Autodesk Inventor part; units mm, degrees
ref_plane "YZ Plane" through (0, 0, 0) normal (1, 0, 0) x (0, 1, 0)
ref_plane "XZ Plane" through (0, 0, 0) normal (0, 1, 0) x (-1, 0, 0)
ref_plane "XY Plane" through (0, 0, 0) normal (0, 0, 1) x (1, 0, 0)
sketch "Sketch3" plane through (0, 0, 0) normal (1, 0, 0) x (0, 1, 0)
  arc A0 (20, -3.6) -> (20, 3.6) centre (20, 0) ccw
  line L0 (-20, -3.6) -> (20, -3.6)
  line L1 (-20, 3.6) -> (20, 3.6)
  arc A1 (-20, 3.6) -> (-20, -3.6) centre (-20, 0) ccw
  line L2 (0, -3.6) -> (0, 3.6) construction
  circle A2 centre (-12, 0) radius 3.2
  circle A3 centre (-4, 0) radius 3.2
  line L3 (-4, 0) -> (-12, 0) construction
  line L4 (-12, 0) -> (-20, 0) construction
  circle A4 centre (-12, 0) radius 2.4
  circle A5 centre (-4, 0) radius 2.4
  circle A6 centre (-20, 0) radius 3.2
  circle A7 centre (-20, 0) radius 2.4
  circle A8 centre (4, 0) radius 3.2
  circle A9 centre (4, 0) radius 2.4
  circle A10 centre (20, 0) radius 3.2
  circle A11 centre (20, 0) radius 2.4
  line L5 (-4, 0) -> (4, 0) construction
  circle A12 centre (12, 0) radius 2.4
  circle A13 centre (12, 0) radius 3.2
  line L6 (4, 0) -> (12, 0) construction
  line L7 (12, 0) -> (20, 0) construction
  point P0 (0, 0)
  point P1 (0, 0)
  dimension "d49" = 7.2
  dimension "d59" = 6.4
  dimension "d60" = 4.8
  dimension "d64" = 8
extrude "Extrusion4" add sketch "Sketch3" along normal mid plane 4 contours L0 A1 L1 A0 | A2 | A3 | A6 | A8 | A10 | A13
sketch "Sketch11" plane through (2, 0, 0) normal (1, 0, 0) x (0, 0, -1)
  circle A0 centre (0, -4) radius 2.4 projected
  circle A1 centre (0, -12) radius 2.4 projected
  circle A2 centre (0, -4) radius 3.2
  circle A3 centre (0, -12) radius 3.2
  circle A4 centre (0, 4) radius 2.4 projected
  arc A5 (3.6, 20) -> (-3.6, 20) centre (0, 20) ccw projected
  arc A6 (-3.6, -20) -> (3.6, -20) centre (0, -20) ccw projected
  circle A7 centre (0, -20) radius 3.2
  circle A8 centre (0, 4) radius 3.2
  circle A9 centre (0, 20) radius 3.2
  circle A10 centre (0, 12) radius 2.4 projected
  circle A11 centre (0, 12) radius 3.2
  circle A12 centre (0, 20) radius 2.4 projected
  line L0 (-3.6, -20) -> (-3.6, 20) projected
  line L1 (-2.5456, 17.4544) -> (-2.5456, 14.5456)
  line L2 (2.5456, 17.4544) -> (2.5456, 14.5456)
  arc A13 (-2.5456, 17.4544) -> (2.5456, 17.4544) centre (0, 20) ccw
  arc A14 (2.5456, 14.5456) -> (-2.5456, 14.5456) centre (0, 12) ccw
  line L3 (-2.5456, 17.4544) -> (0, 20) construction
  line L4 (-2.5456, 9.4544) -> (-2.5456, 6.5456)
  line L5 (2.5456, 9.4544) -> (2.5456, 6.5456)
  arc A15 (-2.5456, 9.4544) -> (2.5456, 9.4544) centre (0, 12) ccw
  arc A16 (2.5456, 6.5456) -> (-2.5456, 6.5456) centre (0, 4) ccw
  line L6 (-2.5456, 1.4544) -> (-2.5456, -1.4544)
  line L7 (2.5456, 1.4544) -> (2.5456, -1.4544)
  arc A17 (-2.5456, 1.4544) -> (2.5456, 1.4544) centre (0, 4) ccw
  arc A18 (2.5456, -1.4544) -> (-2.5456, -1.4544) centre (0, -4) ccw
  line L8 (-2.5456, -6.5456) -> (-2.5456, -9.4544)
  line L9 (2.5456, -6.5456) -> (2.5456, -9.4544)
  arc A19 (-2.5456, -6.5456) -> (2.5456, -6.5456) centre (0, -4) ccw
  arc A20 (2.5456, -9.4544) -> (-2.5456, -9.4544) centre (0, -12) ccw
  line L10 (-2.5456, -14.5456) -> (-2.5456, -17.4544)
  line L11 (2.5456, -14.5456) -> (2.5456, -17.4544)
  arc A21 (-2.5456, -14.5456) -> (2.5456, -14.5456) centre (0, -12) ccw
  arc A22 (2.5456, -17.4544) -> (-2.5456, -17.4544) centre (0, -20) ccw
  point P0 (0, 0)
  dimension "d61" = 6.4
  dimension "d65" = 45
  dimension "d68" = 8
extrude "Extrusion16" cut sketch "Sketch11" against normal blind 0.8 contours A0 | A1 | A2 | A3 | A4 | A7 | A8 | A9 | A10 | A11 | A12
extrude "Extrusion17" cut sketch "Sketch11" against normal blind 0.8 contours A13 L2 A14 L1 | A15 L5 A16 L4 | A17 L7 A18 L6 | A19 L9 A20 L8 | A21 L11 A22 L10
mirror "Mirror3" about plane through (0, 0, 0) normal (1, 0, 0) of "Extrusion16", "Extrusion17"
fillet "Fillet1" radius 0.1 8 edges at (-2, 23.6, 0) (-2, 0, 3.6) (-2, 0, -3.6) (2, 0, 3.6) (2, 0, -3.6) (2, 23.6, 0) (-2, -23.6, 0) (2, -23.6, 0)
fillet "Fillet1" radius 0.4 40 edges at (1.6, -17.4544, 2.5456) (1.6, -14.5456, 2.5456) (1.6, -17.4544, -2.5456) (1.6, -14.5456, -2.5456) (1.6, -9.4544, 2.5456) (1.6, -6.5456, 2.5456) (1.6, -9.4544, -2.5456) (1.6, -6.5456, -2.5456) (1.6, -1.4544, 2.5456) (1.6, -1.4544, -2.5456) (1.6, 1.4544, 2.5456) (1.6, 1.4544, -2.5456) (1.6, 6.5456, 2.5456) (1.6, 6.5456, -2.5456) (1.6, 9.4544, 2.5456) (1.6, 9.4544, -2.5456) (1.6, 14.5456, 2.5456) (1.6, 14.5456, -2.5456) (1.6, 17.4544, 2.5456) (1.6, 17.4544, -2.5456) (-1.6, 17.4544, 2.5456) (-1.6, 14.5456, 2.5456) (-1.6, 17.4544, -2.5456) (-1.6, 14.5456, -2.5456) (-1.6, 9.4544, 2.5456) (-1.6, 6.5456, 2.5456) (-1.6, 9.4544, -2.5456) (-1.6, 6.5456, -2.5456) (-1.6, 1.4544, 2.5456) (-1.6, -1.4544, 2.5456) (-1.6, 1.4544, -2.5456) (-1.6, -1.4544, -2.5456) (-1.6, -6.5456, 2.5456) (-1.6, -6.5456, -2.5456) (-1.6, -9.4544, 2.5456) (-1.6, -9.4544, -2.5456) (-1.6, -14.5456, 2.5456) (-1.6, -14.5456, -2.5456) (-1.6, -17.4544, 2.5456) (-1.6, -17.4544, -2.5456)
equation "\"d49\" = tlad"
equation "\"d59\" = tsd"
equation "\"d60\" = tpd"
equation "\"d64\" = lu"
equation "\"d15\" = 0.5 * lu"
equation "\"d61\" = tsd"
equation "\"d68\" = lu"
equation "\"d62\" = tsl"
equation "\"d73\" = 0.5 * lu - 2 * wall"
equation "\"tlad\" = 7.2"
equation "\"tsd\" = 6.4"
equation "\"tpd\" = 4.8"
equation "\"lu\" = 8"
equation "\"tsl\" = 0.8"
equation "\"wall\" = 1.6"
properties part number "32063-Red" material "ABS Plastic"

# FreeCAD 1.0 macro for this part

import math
import FreeCAD as App
import Part
import Sketcher
Q = App.Units.Quantity


def edges_at(feature, points):
    """Names of the edges that pass closest to the given points."""
    edges = feature.Shape.Edges
    near = lambda p: min(range(len(edges)), key=lambda i: edges[i].distToShape(Part.Vertex(*p))[0])
    return sorted({f"Edge{near(p) + 1}" for p in points})

doc = App.newDocument("Part")
params = doc.addObject("Spreadsheet::Sheet", "Params")
for row, (alias, value) in enumerate([
    ("sketch1_diameter", "4.8 mm"),
    ("sketch1_radius", "3.6 mm"),
    ("pad1_length", "4 mm"),
    ("sketch2_diameter", "6.4 mm"),
    ("pocket1_length", "0.8 mm"),
    ("sketch3_radius", "3.6 mm"),
    ("pocket2_length", "0.8 mm"),
    ("fillet_radius", "0.1 mm"),
    ("fillet2_radius", "0.4 mm"),
], start=1):
    params.set(f"A{row}", alias)
    params.set(f"B{row}", "=" + value)
    params.setAlias(f"B{row}", alias)

body = doc.addObject("PartDesign::Body", "Body")

# Sketch on YZ plane
sketch1 = body.newObject("Sketcher::SketchObject", "Sketch")
sketch1.AttachmentSupport = (doc.getObject("YZ_Plane"), [""])
sketch1.MapMode = "FlatFace"
sketch1.addGeometry([
    Part.LineSegment(App.Vector(-20, -3.6, 0), App.Vector(20, -3.6, 0)),  # 0
    Part.ArcOfCircle(Part.Circle(App.Vector(20, 0, 0), App.Vector(0, 0, 1), 3.6), math.radians(-90), math.radians(90)),  # 1
    Part.LineSegment(App.Vector(20, 3.6, 0), App.Vector(-20, 3.6, 0)),  # 2
    Part.ArcOfCircle(Part.Circle(App.Vector(-20, 0, 0), App.Vector(0, 0, 1), 3.6), math.radians(90), math.radians(270)),  # 3
    Part.Circle(App.Vector(-20, 0, 0), App.Vector(0, 0, 1), 2.4),  # 4
    Part.Circle(App.Vector(-12, 0, 0), App.Vector(0, 0, 1), 2.4),  # 5
    Part.Circle(App.Vector(-4, 0, 0), App.Vector(0, 0, 1), 2.4),  # 6
    Part.Circle(App.Vector(4, 0, 0), App.Vector(0, 0, 1), 2.4),  # 7
    Part.Circle(App.Vector(12, 0, 0), App.Vector(0, 0, 1), 2.4),  # 8
    Part.Circle(App.Vector(20, 0, 0), App.Vector(0, 0, 1), 2.4),  # 9
], False)
sketch1.addConstraint([
    Sketcher.Constraint("Tangent", 0, 2, 1, 1),
    Sketcher.Constraint("Tangent", 1, 2, 2, 1),
    Sketcher.Constraint("Tangent", 2, 2, 3, 1),
    Sketcher.Constraint("Tangent", 3, 2, 0, 1),
    Sketcher.Constraint("Horizontal", 0),
    Sketcher.Constraint("Horizontal", 2),
    Sketcher.Constraint("Coincident", 4, 3, 3, 3),
    Sketcher.Constraint("Coincident", 9, 3, 1, 3),
    Sketcher.Constraint("Equal", 4, 5),
    Sketcher.Constraint("Equal", 5, 6),
    Sketcher.Constraint("Equal", 6, 7),
    Sketcher.Constraint("Equal", 7, 8),
    Sketcher.Constraint("Equal", 8, 9),
    Sketcher.Constraint("Symmetric", 1, 3, 3, 3, -1, 1),
    Sketcher.Constraint("Symmetric", 6, 3, 7, 3, -1, 1),
    Sketcher.Constraint("Symmetric", 5, 3, 8, 3, -1, 1),
    Sketcher.Constraint("PointOnObject", 5, 3, -1),
    Sketcher.Constraint("PointOnObject", 6, 3, -1),
    Sketcher.Constraint("Diameter", 4, Q("4.8 mm")),
    Sketcher.Constraint("Radius", 1, Q("3.6 mm")),
    Sketcher.Constraint("DistanceX", 3, 3, 5, 3, Q("8 mm")),
    Sketcher.Constraint("DistanceX", 5, 3, 6, 3, Q("8 mm")),
    Sketcher.Constraint("DistanceX", 6, 3, 7, 3, Q("8 mm")),
])
sketch1.setExpression("Constraints[18]", "Params.sketch1_diameter")
sketch1.setExpression("Constraints[19]", "Params.sketch1_radius")
pad1 = body.newObject("PartDesign::Pad", "Pad")
pad1.Profile = sketch1
pad1.setExpression("Length", "Params.pad1_length")
pad1.Midplane = True

# Sketch on YZ plane
sketch2 = body.newObject("Sketcher::SketchObject", "Sketch001")
sketch2.AttachmentSupport = (doc.getObject("YZ_Plane"), [""])
sketch2.MapMode = "FlatFace"
sketch2.AttachmentOffset = App.Placement(App.Vector(0, 0, 2), App.Rotation())
sketch2.addGeometry([
    Part.Circle(App.Vector(-4, 0, 0), App.Vector(0, 0, 1), 3.2),  # 0
    Part.Circle(App.Vector(-12, 0, 0), App.Vector(0, 0, 1), 3.2),  # 1
    Part.Circle(App.Vector(4, 0, 0), App.Vector(0, 0, 1), 3.2),  # 2
    Part.Circle(App.Vector(-20, 0, 0), App.Vector(0, 0, 1), 3.2),  # 3
    Part.Circle(App.Vector(20, 0, 0), App.Vector(0, 0, 1), 3.2),  # 4
    Part.Circle(App.Vector(12, 0, 0), App.Vector(0, 0, 1), 3.2),  # 5
], False)
sketch2.addConstraint([
    Sketcher.Constraint("Equal", 0, 1),
    Sketcher.Constraint("Equal", 1, 2),
    Sketcher.Constraint("Equal", 2, 3),
    Sketcher.Constraint("Equal", 3, 4),
    Sketcher.Constraint("Equal", 4, 5),
    Sketcher.Constraint("Symmetric", 0, 3, 2, 3, -1, 1),
    Sketcher.Constraint("Symmetric", 3, 3, 4, 3, -1, 1),
    Sketcher.Constraint("Symmetric", 1, 3, 5, 3, -1, 1),
    Sketcher.Constraint("PointOnObject", 0, 3, -1),
    Sketcher.Constraint("PointOnObject", 1, 3, -1),
    Sketcher.Constraint("PointOnObject", 3, 3, -1),
    Sketcher.Constraint("Diameter", 0, Q("6.4 mm")),
    Sketcher.Constraint("DistanceX", 1, 3, 0, 3, Q("8 mm")),
    Sketcher.Constraint("DistanceX", 0, 3, 2, 3, Q("8 mm")),
    Sketcher.Constraint("DistanceX", 3, 3, 1, 3, Q("8 mm")),
])
sketch2.setExpression("Constraints[11]", "Params.sketch2_diameter")
pocket1 = body.newObject("PartDesign::Pocket", "Pocket")
pocket1.Profile = sketch2
pocket1.setExpression("Length", "Params.pocket1_length")

# Sketch on YZ plane
sketch3 = body.newObject("Sketcher::SketchObject", "Sketch002")
sketch3.AttachmentSupport = (doc.getObject("YZ_Plane"), [""])
sketch3.MapMode = "FlatFace"
sketch3.AttachmentOffset = App.Placement(App.Vector(0, 0, 2), App.Rotation())
sketch3.addGeometry([
    Part.ArcOfCircle(Part.Circle(App.Vector(20, 0, 0), App.Vector(0, 0, 1), 3.6), math.radians(135), math.radians(225)),  # 0
    Part.LineSegment(App.Vector(17.5, 2.5, 0), App.Vector(14.5, 2.5, 0)),  # 1
    Part.ArcOfCircle(Part.Circle(App.Vector(12, 0, 0), App.Vector(0, 0, 1), 3.6), math.radians(-45), math.radians(45)),  # 2
    Part.LineSegment(App.Vector(14.5, -2.5, 0), App.Vector(17.5, -2.5, 0)),  # 3
    Part.ArcOfCircle(Part.Circle(App.Vector(12, 0, 0), App.Vector(0, 0, 1), 3.6), math.radians(135), math.radians(225)),  # 4
    Part.LineSegment(App.Vector(9.5, 2.5, 0), App.Vector(6.5, 2.5, 0)),  # 5
    Part.ArcOfCircle(Part.Circle(App.Vector(4, 0, 0), App.Vector(0, 0, 1), 3.6), math.radians(-45), math.radians(45)),  # 6
    Part.LineSegment(App.Vector(6.5, -2.5, 0), App.Vector(9.5, -2.5, 0)),  # 7
    Part.ArcOfCircle(Part.Circle(App.Vector(4, 0, 0), App.Vector(0, 0, 1), 3.6), math.radians(135), math.radians(225)),  # 8
    Part.LineSegment(App.Vector(1.5, 2.5, 0), App.Vector(-1.5, 2.5, 0)),  # 9
    Part.ArcOfCircle(Part.Circle(App.Vector(-4, 0, 0), App.Vector(0, 0, 1), 3.6), math.radians(-45), math.radians(45)),  # 10
    Part.LineSegment(App.Vector(-1.5, -2.5, 0), App.Vector(1.5, -2.5, 0)),  # 11
    Part.ArcOfCircle(Part.Circle(App.Vector(-4, 0, 0), App.Vector(0, 0, 1), 3.6), math.radians(135), math.radians(225)),  # 12
    Part.LineSegment(App.Vector(-6.5, 2.5, 0), App.Vector(-9.5, 2.5, 0)),  # 13
    Part.ArcOfCircle(Part.Circle(App.Vector(-12, 0, 0), App.Vector(0, 0, 1), 3.6), math.radians(-45), math.radians(45)),  # 14
    Part.LineSegment(App.Vector(-9.5, -2.5, 0), App.Vector(-6.5, -2.5, 0)),  # 15
    Part.ArcOfCircle(Part.Circle(App.Vector(-12, 0, 0), App.Vector(0, 0, 1), 3.6), math.radians(135), math.radians(225)),  # 16
    Part.LineSegment(App.Vector(-14.5, 2.5, 0), App.Vector(-17.5, 2.5, 0)),  # 17
    Part.ArcOfCircle(Part.Circle(App.Vector(-20, 0, 0), App.Vector(0, 0, 1), 3.6), math.radians(-45), math.radians(45)),  # 18
    Part.LineSegment(App.Vector(-17.5, -2.5, 0), App.Vector(-14.5, -2.5, 0)),  # 19
], False)
sketch3.addConstraint([
    Sketcher.Constraint("Coincident", 0, 1, 1, 1),
    Sketcher.Constraint("Coincident", 1, 2, 2, 2),
    Sketcher.Constraint("Coincident", 2, 1, 3, 1),
    Sketcher.Constraint("Coincident", 3, 2, 0, 2),
    Sketcher.Constraint("Coincident", 4, 1, 5, 1),
    Sketcher.Constraint("Coincident", 5, 2, 6, 2),
    Sketcher.Constraint("Coincident", 6, 1, 7, 1),
    Sketcher.Constraint("Coincident", 7, 2, 4, 2),
    Sketcher.Constraint("Coincident", 8, 1, 9, 1),
    Sketcher.Constraint("Coincident", 9, 2, 10, 2),
    Sketcher.Constraint("Coincident", 10, 1, 11, 1),
    Sketcher.Constraint("Coincident", 11, 2, 8, 2),
    Sketcher.Constraint("Coincident", 12, 1, 13, 1),
    Sketcher.Constraint("Coincident", 13, 2, 14, 2),
    Sketcher.Constraint("Coincident", 14, 1, 15, 1),
    Sketcher.Constraint("Coincident", 15, 2, 12, 2),
    Sketcher.Constraint("Coincident", 16, 1, 17, 1),
    Sketcher.Constraint("Coincident", 17, 2, 18, 2),
    Sketcher.Constraint("Coincident", 18, 1, 19, 1),
    Sketcher.Constraint("Coincident", 19, 2, 16, 2),
    Sketcher.Constraint("Horizontal", 1),
    Sketcher.Constraint("Horizontal", 3),
    Sketcher.Constraint("Horizontal", 5),
    Sketcher.Constraint("Horizontal", 7),
    Sketcher.Constraint("Horizontal", 9),
    Sketcher.Constraint("Horizontal", 11),
    Sketcher.Constraint("Horizontal", 13),
    Sketcher.Constraint("Horizontal", 15),
    Sketcher.Constraint("Horizontal", 17),
    Sketcher.Constraint("Horizontal", 19),
    Sketcher.Constraint("Coincident", 4, 3, 2, 3),
    Sketcher.Constraint("Coincident", 8, 3, 6, 3),
    Sketcher.Constraint("Coincident", 12, 3, 10, 3),
    Sketcher.Constraint("Coincident", 16, 3, 14, 3),
    Sketcher.Constraint("Equal", 0, 2),
    Sketcher.Constraint("Equal", 2, 4),
    Sketcher.Constraint("Equal", 4, 6),
    Sketcher.Constraint("Equal", 6, 8),
    Sketcher.Constraint("Equal", 8, 10),
    Sketcher.Constraint("Equal", 10, 12),
    Sketcher.Constraint("Equal", 12, 14),
    Sketcher.Constraint("Equal", 14, 16),
    Sketcher.Constraint("Equal", 16, 18),
    Sketcher.Constraint("Symmetric", 6, 3, 10, 3, -1, 1),
    Sketcher.Constraint("Symmetric", 2, 3, 14, 3, -1, 1),
    Sketcher.Constraint("Symmetric", 0, 3, 18, 3, -1, 1),
    Sketcher.Constraint("Symmetric", 5, 2, 12, 1, -2),
    Sketcher.Constraint("Symmetric", 7, 2, 14, 1, -2),
    Sketcher.Constraint("Symmetric", 0, 1, 17, 2, -2),
    Sketcher.Constraint("Horizontal", 1, 2, 4, 1),
    Sketcher.Constraint("Horizontal", 3, 2, 6, 1),
    Sketcher.Constraint("Horizontal", 5, 2, 8, 1),
    Sketcher.Constraint("Horizontal", 7, 2, 10, 1),
    Sketcher.Constraint("Horizontal", 15, 2, 18, 1),
    Sketcher.Constraint("Vertical", 1, 2, 2, 1),
    Sketcher.Constraint("Equal", 3, 5),
    Sketcher.Constraint("Equal", 7, 9),
    Sketcher.Constraint("DistanceX", 2, 3, 0, 3, Q("8 mm")),
    Sketcher.Constraint("Radius", 0, Q("3.6 mm")),
    Sketcher.Constraint("DistanceX", 1, 2, 1, 1, Q("2.9088 mm")),
])
sketch3.setExpression("Constraints[58]", "Params.sketch3_radius")
pocket2 = body.newObject("PartDesign::Pocket", "Pocket001")
pocket2.Profile = sketch3
pocket2.setExpression("Length", "Params.pocket2_length")
doc.recompute()

mirrored = body.newObject("PartDesign::Mirrored", "Mirrored")
mirrored.Originals = [pocket1, pocket2]
mirrored.MirrorPlane = (doc.getObject("YZ_Plane"), [""])
body.Tip = mirrored
doc.recompute()

fillet = body.newObject("PartDesign::Fillet", "Fillet")
fillet.Base = (mirrored, edges_at(mirrored, [
    (-2, 23.6, 0),
    (-2, 0, 3.6),
    (-2, 0, -3.6),
    (2, 0, 3.6),
    (2, 0, -3.6),
    (2, 23.6, 0),
    (-2, -23.6, 0),
    (2, -23.6, 0),
]))
fillet.setExpression("Radius", "Params.fillet_radius")
doc.recompute()

fillet2 = body.newObject("PartDesign::Fillet", "Fillet001")
fillet2.Base = (fillet, edges_at(fillet, [
    (1.6, -17.454, 2.546),
    (1.6, -14.546, 2.546),
    (1.6, -17.454, -2.546),
    (1.6, -14.546, -2.546),
    (1.6, -9.454, 2.546),
    (1.6, -6.546, 2.546),
    (1.6, -9.454, -2.546),
    (1.6, -6.546, -2.546),
    (1.6, -1.454, 2.546),
    (1.6, -1.454, -2.546),
    (1.6, 1.454, 2.546),
    (1.6, 1.454, -2.546),
    (1.6, 6.546, 2.546),
    (1.6, 6.546, -2.546),
    (1.6, 9.454, 2.546),
    (1.6, 9.454, -2.546),
    (1.6, 14.546, 2.546),
    (1.6, 14.546, -2.546),
    (1.6, 17.454, 2.546),
    (1.6, 17.454, -2.546),
    (-1.6, 17.454, 2.546),
    (-1.6, 14.546, 2.546),
    (-1.6, 17.454, -2.546),
    (-1.6, 14.546, -2.546),
    (-1.6, 9.454, 2.546),
    (-1.6, 6.546, 2.546),
    (-1.6, 9.454, -2.546),
    (-1.6, 6.546, -2.546),
    (-1.6, 1.454, 2.546),
    (-1.6, -1.454, 2.546),
    (-1.6, 1.454, -2.546),
    (-1.6, -1.454, -2.546),
    (-1.6, -6.546, 2.546),
    (-1.6, -6.546, -2.546),
    (-1.6, -9.454, 2.546),
    (-1.6, -9.454, -2.546),
    (-1.6, -14.546, 2.546),
    (-1.6, -14.546, -2.546),
    (-1.6, -17.454, 2.546),
    (-1.6, -17.454, -2.546),
]))
fillet2.setExpression("Radius", "Params.fillet2_radius")

doc.recompute()
